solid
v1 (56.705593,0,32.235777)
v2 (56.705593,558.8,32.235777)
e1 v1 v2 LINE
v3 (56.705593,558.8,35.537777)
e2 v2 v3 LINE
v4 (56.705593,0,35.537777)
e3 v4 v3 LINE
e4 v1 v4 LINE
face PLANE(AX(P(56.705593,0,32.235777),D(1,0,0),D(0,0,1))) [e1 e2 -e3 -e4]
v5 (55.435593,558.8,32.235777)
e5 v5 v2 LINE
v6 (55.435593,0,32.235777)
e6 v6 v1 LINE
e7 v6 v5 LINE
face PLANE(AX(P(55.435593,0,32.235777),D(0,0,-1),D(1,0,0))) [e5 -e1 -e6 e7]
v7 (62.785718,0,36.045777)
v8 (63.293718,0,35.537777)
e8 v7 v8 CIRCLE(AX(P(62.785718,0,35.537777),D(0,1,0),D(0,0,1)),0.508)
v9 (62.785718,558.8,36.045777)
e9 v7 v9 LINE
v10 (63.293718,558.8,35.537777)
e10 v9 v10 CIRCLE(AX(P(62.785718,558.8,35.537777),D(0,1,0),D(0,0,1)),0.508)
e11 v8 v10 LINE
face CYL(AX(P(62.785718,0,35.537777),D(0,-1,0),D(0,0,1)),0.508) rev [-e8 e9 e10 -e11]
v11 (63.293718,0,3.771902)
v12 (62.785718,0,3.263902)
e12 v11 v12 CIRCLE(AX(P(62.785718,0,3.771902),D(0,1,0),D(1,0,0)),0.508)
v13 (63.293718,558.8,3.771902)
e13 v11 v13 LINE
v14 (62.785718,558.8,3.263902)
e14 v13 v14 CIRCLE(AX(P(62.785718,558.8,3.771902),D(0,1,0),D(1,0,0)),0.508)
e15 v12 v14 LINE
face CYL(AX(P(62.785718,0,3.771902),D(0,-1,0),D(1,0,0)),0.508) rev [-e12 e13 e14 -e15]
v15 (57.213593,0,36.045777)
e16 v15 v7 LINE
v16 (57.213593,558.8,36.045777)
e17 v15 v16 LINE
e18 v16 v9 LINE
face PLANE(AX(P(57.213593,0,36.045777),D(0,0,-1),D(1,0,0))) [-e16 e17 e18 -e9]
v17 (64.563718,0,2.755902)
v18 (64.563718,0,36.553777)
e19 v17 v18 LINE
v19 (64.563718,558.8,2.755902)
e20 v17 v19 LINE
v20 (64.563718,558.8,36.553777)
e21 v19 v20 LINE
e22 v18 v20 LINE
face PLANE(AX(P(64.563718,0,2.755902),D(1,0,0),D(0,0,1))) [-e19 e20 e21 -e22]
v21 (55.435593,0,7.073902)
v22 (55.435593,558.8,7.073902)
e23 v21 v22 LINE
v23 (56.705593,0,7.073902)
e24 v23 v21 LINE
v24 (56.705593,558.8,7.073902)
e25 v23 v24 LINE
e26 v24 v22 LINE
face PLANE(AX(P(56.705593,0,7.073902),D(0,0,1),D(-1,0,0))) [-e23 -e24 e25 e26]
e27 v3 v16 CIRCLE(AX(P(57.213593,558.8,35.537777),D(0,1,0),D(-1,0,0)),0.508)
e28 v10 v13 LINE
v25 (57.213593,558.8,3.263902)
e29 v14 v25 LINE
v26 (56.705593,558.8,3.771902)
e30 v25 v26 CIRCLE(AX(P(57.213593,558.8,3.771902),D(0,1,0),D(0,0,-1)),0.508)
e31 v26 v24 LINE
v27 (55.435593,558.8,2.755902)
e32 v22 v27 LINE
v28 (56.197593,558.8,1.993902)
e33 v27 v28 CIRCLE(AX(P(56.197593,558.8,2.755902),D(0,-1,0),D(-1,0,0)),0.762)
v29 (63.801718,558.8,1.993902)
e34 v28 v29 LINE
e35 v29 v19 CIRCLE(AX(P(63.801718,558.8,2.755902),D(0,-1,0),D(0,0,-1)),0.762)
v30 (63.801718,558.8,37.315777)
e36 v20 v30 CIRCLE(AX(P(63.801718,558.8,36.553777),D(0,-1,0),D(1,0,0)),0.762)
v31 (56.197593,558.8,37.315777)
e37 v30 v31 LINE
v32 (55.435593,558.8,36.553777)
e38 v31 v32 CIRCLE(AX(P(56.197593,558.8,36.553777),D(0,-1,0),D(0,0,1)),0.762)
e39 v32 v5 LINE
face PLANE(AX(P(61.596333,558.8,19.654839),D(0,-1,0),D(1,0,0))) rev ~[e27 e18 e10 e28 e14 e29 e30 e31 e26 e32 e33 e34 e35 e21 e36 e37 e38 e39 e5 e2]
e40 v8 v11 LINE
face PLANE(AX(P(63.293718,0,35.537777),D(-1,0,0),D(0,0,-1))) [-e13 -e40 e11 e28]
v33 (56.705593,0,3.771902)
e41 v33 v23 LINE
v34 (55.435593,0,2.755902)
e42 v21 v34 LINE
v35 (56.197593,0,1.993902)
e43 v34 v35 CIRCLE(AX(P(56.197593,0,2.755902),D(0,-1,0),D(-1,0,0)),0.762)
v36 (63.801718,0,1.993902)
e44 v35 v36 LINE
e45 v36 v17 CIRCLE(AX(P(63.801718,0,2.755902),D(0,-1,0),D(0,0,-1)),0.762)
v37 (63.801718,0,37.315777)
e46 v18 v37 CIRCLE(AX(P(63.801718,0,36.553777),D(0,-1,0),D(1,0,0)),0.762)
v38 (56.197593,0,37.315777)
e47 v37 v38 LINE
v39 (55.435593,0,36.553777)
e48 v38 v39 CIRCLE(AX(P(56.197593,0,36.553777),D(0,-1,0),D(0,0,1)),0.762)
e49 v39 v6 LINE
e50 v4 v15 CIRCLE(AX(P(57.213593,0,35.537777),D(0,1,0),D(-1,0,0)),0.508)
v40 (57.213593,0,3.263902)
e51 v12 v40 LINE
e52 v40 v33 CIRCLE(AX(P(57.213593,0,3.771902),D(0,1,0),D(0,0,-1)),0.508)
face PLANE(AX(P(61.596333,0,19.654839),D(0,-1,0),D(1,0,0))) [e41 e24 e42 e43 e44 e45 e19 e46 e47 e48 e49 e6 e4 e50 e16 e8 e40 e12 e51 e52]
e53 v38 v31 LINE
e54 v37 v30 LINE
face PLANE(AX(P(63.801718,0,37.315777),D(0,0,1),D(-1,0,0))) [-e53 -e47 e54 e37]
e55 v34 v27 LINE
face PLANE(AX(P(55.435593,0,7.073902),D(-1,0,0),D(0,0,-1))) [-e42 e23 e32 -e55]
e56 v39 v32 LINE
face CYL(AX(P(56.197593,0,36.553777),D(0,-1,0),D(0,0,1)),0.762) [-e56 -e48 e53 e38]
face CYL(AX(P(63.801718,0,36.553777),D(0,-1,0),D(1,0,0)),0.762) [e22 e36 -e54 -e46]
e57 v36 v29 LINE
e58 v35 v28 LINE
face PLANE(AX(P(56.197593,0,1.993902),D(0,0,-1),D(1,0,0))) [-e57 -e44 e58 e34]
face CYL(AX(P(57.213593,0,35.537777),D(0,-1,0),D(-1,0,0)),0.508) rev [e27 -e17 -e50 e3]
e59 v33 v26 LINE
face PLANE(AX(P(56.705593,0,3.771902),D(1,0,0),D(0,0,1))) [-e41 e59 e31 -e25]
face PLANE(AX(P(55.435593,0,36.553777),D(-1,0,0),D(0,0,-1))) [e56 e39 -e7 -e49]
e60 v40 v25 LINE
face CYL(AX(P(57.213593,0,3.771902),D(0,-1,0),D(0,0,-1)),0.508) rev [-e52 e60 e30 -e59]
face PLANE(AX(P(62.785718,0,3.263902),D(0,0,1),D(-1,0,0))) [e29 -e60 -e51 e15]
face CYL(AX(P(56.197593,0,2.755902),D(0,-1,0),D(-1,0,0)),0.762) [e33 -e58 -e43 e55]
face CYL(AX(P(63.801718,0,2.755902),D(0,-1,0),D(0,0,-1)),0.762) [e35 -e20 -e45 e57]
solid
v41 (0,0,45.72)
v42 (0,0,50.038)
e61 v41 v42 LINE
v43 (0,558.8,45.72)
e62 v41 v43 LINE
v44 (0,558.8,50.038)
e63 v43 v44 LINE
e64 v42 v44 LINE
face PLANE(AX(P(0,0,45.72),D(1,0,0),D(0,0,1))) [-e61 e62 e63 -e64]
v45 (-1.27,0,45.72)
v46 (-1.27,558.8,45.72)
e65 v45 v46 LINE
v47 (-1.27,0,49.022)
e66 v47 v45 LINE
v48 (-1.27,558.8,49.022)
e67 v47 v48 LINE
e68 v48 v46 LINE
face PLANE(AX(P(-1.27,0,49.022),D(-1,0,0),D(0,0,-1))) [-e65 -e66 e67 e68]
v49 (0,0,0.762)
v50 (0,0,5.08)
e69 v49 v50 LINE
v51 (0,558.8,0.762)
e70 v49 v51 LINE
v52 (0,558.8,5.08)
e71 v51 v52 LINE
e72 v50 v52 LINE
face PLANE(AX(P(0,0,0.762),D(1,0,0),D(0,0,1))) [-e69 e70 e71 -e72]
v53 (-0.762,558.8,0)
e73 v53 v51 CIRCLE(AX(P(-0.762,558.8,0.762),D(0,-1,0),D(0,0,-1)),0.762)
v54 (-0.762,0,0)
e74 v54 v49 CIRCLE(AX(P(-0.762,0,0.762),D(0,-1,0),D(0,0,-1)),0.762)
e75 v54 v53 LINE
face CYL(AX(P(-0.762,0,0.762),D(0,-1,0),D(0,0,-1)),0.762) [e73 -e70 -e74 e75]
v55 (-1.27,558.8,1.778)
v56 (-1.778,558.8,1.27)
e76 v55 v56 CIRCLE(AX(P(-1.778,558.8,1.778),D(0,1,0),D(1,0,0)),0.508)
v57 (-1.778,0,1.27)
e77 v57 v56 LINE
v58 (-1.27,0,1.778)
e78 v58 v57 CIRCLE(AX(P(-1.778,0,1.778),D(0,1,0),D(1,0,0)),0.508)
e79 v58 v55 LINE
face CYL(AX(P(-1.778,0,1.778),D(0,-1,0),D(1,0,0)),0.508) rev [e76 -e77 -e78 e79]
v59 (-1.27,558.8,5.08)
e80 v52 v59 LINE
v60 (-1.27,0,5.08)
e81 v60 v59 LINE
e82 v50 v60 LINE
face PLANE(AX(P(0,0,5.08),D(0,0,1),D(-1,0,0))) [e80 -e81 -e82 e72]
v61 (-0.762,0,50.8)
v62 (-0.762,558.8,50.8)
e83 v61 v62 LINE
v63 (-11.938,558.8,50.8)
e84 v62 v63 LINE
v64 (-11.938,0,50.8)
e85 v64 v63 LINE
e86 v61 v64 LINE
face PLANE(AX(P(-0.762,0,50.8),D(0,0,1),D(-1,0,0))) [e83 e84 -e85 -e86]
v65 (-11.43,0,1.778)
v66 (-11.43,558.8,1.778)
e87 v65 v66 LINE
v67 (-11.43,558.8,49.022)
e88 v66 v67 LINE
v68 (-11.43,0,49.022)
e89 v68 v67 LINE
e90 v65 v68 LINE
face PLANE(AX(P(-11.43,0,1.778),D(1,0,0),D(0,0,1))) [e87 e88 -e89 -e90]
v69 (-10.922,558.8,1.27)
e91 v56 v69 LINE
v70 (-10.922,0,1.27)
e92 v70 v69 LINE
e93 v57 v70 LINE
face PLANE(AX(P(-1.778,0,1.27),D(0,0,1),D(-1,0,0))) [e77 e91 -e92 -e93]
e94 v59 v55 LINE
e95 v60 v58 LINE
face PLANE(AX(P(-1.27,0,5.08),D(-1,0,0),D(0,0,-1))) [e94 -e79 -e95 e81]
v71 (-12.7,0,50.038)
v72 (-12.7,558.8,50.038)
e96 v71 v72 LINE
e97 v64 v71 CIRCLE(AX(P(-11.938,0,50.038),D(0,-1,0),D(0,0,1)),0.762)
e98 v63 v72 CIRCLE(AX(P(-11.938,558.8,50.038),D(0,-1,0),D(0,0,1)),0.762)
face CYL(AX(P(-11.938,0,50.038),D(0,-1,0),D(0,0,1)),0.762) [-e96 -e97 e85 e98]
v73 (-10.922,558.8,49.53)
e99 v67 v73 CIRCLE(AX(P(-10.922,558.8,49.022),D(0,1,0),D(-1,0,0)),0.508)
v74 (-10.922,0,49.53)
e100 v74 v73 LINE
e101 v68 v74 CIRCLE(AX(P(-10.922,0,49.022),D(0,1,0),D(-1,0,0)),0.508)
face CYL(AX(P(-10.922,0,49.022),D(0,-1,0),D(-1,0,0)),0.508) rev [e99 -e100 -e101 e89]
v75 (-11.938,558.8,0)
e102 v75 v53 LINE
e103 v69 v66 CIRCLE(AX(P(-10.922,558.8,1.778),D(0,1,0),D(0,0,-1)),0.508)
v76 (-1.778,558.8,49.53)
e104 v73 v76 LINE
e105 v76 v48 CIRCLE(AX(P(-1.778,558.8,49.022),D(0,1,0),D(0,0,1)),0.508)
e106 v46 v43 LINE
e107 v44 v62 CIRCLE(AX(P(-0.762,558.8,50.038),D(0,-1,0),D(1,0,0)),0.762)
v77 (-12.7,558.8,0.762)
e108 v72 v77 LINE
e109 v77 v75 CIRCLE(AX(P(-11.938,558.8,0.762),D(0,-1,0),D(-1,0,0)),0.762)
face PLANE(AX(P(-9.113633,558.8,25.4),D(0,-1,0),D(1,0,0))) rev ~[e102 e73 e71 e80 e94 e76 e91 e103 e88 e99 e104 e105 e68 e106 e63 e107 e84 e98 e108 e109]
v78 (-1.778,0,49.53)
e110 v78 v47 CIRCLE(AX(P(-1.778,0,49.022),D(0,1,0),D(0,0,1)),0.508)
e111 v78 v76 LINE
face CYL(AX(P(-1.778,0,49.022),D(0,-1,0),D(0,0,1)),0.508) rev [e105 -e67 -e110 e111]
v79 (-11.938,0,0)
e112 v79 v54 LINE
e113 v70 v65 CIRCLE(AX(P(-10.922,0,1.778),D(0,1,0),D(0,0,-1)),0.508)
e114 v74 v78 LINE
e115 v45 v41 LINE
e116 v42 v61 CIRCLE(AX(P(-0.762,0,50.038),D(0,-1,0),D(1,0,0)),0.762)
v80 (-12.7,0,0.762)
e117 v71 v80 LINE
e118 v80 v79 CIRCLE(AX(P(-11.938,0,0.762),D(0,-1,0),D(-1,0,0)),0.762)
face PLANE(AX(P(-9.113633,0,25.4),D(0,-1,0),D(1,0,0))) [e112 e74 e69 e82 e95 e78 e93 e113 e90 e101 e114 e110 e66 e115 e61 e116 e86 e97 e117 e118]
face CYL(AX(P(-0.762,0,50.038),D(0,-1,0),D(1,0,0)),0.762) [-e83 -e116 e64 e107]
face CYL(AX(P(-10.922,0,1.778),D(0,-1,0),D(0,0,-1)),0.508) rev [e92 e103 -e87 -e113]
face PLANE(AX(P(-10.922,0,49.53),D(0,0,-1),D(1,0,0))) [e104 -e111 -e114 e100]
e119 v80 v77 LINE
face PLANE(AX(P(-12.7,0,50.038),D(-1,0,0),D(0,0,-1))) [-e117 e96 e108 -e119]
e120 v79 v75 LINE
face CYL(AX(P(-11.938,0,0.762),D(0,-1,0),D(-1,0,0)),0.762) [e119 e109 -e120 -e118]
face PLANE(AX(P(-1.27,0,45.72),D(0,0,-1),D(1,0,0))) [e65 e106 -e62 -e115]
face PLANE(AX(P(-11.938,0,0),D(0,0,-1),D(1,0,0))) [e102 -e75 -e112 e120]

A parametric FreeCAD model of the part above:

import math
import FreeCAD as App
import Part
import Sketcher

V = App.Vector
Q = App.Units.Quantity

doc = App.newDocument("Part")
body = doc.addObject("PartDesign::Body", "Body")

# Sketch on XZ plane
sketch1 = doc.addObject("Sketcher::SketchObject", "Sketch")
body.addObject(sketch1)
sketch1.AttachmentSupport = (doc.XZ_Plane, [""])
sketch1.MapMode = "FlatFace"
sketch1.addGeometry(Part.LineSegment(V(-0.762, 50.8, 0), V(-11.938, 50.8, 0)), False)
sketch1.addGeometry(Part.ArcOfCircle(Part.Circle(V(-11.938, 50.038, 0), V(0, 0, 1), 0.762), math.radians(90), math.radians(180)), False)
sketch1.addGeometry(Part.LineSegment(V(-12.7, 50.038, 0), V(-12.7, 0.762, 0)), False)
sketch1.addGeometry(Part.ArcOfCircle(Part.Circle(V(-11.938, 0.762, 0), V(0, 0, 1), 0.762), math.radians(180), math.radians(270)), False)
sketch1.addGeometry(Part.LineSegment(V(-11.938, 0, 0), V(-0.762, 0, 0)), False)
sketch1.addGeometry(Part.ArcOfCircle(Part.Circle(V(-0.762, 0.762, 0), V(0, 0, 1), 0.762), math.radians(-90), math.radians(0)), False)
sketch1.addGeometry(Part.LineSegment(V(0, 0.762, 0), V(0, 5.08, 0)), False)
sketch1.addGeometry(Part.LineSegment(V(0, 5.08, 0), V(-1.27, 5.08, 0)), False)
sketch1.addGeometry(Part.LineSegment(V(-1.27, 5.08, 0), V(-1.27, 1.778, 0)), False)
sketch1.addGeometry(Part.ArcOfCircle(Part.Circle(V(-1.778, 1.778, 0), V(0, 0, 1), 0.508), math.radians(-90), math.radians(0)), False)
sketch1.addGeometry(Part.LineSegment(V(-1.778, 1.27, 0), V(-10.922, 1.27, 0)), False)
sketch1.addGeometry(Part.ArcOfCircle(Part.Circle(V(-10.922, 1.778, 0), V(0, 0, 1), 0.508), math.radians(180), math.radians(270)), False)
sketch1.addGeometry(Part.LineSegment(V(-11.43, 1.778, 0), V(-11.43, 49.022, 0)), False)
sketch1.addGeometry(Part.ArcOfCircle(Part.Circle(V(-10.922, 49.022, 0), V(0, 0, 1), 0.508), math.radians(90), math.radians(180)), False)
sketch1.addGeometry(Part.LineSegment(V(-10.922, 49.53, 0), V(-1.778, 49.53, 0)), False)
sketch1.addGeometry(Part.ArcOfCircle(Part.Circle(V(-1.778, 49.022, 0), V(0, 0, 1), 0.508), math.radians(0), math.radians(90)), False)
sketch1.addGeometry(Part.LineSegment(V(-1.27, 49.022, 0), V(-1.27, 45.72, 0)), False)
sketch1.addGeometry(Part.LineSegment(V(-1.27, 45.72, 0), V(0, 45.72, 0)), False)
sketch1.addGeometry(Part.LineSegment(V(0, 45.72, 0), V(0, 50.038, 0)), False)
sketch1.addGeometry(Part.ArcOfCircle(Part.Circle(V(-0.762, 50.038, 0), V(0, 0, 1), 0.762), math.radians(0), math.radians(90)), False)
sketch1.addConstraint(Sketcher.Constraint("Tangent", 0, 2, 1, 1))
sketch1.addConstraint(Sketcher.Constraint("Tangent", 1, 2, 2, 1))
sketch1.addConstraint(Sketcher.Constraint("Tangent", 2, 2, 3, 1))
sketch1.addConstraint(Sketcher.Constraint("Tangent", 3, 2, 4, 1))
sketch1.addConstraint(Sketcher.Constraint("Tangent", 4, 2, 5, 1))
sketch1.addConstraint(Sketcher.Constraint("Tangent", 5, 2, 6, 1))
sketch1.addConstraint(Sketcher.Constraint("Coincident", 6, 2, 7, 1))
sketch1.addConstraint(Sketcher.Constraint("Coincident", 7, 2, 8, 1))
sketch1.addConstraint(Sketcher.Constraint("Tangent", 8, 2, 9, 2))
sketch1.addConstraint(Sketcher.Constraint("Tangent", 9, 1, 10, 1))
sketch1.addConstraint(Sketcher.Constraint("Tangent", 10, 2, 11, 2))
sketch1.addConstraint(Sketcher.Constraint("Tangent", 11, 1, 12, 1))
sketch1.addConstraint(Sketcher.Constraint("Tangent", 12, 2, 13, 2))
sketch1.addConstraint(Sketcher.Constraint("Tangent", 13, 1, 14, 1))
sketch1.addConstraint(Sketcher.Constraint("Tangent", 14, 2, 15, 2))
sketch1.addConstraint(Sketcher.Constraint("Tangent", 15, 1, 16, 1))
sketch1.addConstraint(Sketcher.Constraint("Coincident", 16, 2, 17, 1))
sketch1.addConstraint(Sketcher.Constraint("Coincident", 17, 2, 18, 1))
sketch1.addConstraint(Sketcher.Constraint("Tangent", 18, 2, 19, 1))
sketch1.addConstraint(Sketcher.Constraint("Tangent", 19, 2, 0, 1))
sketch1.addConstraint(Sketcher.Constraint("Horizontal", 0))
sketch1.addConstraint(Sketcher.Constraint("Vertical", 2))
sketch1.addConstraint(Sketcher.Constraint("Horizontal", 4))
sketch1.addConstraint(Sketcher.Constraint("Vertical", 6))
sketch1.addConstraint(Sketcher.Constraint("Horizontal", 7))
sketch1.addConstraint(Sketcher.Constraint("Vertical", 8))
sketch1.addConstraint(Sketcher.Constraint("Horizontal", 10))
sketch1.addConstraint(Sketcher.Constraint("Vertical", 12))
sketch1.addConstraint(Sketcher.Constraint("Horizontal", 14))
sketch1.addConstraint(Sketcher.Constraint("Vertical", 16))
sketch1.addConstraint(Sketcher.Constraint("Horizontal", 17))
sketch1.addConstraint(Sketcher.Constraint("Vertical", 18))
sketch1.addConstraint(Sketcher.Constraint("Equal", 1, 3))
sketch1.addConstraint(Sketcher.Constraint("Equal", 3, 5))
sketch1.addConstraint(Sketcher.Constraint("Equal", 9, 11))
sketch1.addConstraint(Sketcher.Constraint("Equal", 11, 13))
sketch1.addConstraint(Sketcher.Constraint("Equal", 13, 15))
sketch1.addConstraint(Sketcher.Constraint("Equal", 5, 19))
sketch1.addConstraint(Sketcher.Constraint("PointOnObject", 3, 2, -1))
sketch1.addConstraint(Sketcher.Constraint("PointOnObject", 5, 2, -2))
sketch1.addConstraint(Sketcher.Constraint("PointOnObject", 17, 2, -2))
sketch1.addConstraint(Sketcher.Constraint("Vertical", 9, 3, 15, 3))
sketch1.addConstraint(Sketcher.Constraint("Equal", 8, 16))
sketch1.addConstraint(Sketcher.Constraint("Equal", 6, 18))
sketch1.addConstraint(Sketcher.Constraint("Radius", 1, Q("0.03 in")))
sketch1.addConstraint(Sketcher.Constraint("Radius", 9, Q("0.02 in")))
sketch1.addConstraint(Sketcher.Constraint("DistanceY", -1, 1, 0, 2, Q("2 in")))
sketch1.addConstraint(Sketcher.Constraint("DistanceX", 0, 2, 0, 1, Q("0.44 in")))
sketch1.addConstraint(Sketcher.Constraint("DistanceX", 7, 2, 7, 1, Q("0.05 in")))
sketch1.addConstraint(Sketcher.Constraint("DistanceX", 10, 2, 10, 1, Q("0.36 in")))
sketch1.addConstraint(Sketcher.Constraint("DistanceY", 6, 1, 6, 2, Q("0.17 in")))
sketch1.addConstraint(Sketcher.Constraint("DistanceY", 8, 2, 8, 1, Q("0.13 in")))
pad1 = doc.addObject("PartDesign::Pad", "Pad")
body.addObject(pad1)
pad1.Profile = sketch1
pad1.Length = Q("22 in")
pad1.Reversed = True
body2 = doc.addObject("PartDesign::Body", "Body001")

# Sketch on XZ plane
sketch2 = doc.addObject("Sketcher::SketchObject", "Sketch001")
body2.addObject(sketch2)
sketch2.AttachmentSupport = (doc.getObject("XZ_Plane001"), [""])
sketch2.MapMode = "FlatFace"
sketch2.addGeometry(Part.LineSegment(V(55.435593, 36.553777, 0), V(55.435593, 32.235777, 0)), False)
sketch2.addGeometry(Part.LineSegment(V(55.435593, 32.235777, 0), V(56.705593, 32.235777, 0)), False)
sketch2.addGeometry(Part.LineSegment(V(56.705593, 32.235777, 0), V(56.705593, 35.537777, 0)), False)
sketch2.addGeometry(Part.ArcOfCircle(Part.Circle(V(57.213593, 35.537777, 0), V(0, 0, 1), 0.508), math.radians(90), math.radians(180)), False)
sketch2.addGeometry(Part.LineSegment(V(57.213593, 36.045777, 0), V(62.785718, 36.045777, 0)), False)
sketch2.addGeometry(Part.ArcOfCircle(Part.Circle(V(62.785718, 35.537777, 0), V(0, 0, 1), 0.508), math.radians(0), math.radians(90)), False)
sketch2.addGeometry(Part.LineSegment(V(63.293718, 35.537777, 0), V(63.293718, 3.771902, 0)), False)
sketch2.addGeometry(Part.ArcOfCircle(Part.Circle(V(62.785718, 3.771902, 0), V(0, 0, 1), 0.508), math.radians(-90), math.radians(0)), False)
sketch2.addGeometry(Part.LineSegment(V(62.785718, 3.263902, 0), V(57.213593, 3.263902, 0)), False)
sketch2.addGeometry(Part.ArcOfCircle(Part.Circle(V(57.213593, 3.771902, 0), V(0, 0, 1), 0.508), math.radians(180), math.radians(270)), False)
sketch2.addGeometry(Part.LineSegment(V(56.705593, 3.771902, 0), V(56.705593, 7.073902, 0)), False)
sketch2.addGeometry(Part.LineSegment(V(56.705593, 7.073902, 0), V(55.435593, 7.073902, 0)), False)
sketch2.addGeometry(Part.LineSegment(V(55.435593, 7.073902, 0), V(55.435593, 2.755902, 0)), False)
sketch2.addGeometry(Part.ArcOfCircle(Part.Circle(V(56.197593, 2.755902, 0), V(0, 0, 1), 0.762), math.radians(180), math.radians(270)), False)
sketch2.addGeometry(Part.LineSegment(V(56.197593, 1.993902, 0), V(63.801718, 1.993902, 0)), False)
sketch2.addGeometry(Part.ArcOfCircle(Part.Circle(V(63.801718, 2.755902, 0), V(0, 0, 1), 0.762), math.radians(-90), math.radians(0)), False)
sketch2.addGeometry(Part.LineSegment(V(64.563718, 2.755902, 0), V(64.563718, 36.553777, 0)), False)
sketch2.addGeometry(Part.ArcOfCircle(Part.Circle(V(63.801718, 36.553777, 0), V(0, 0, 1), 0.762), math.radians(0), math.radians(90)), False)
sketch2.addGeometry(Part.LineSegment(V(63.801718, 37.315777, 0), V(56.197593, 37.315777, 0)), False)
sketch2.addGeometry(Part.ArcOfCircle(Part.Circle(V(56.197593, 36.553777, 0), V(0, 0, 1), 0.762), math.radians(90), math.radians(180)), False)
sketch2.addConstraint(Sketcher.Constraint("Coincident", 0, 2, 1, 1))
sketch2.addConstraint(Sketcher.Constraint("Coincident", 1, 2, 2, 1))
sketch2.addConstraint(Sketcher.Constraint("Tangent", 2, 2, 3, 2))
sketch2.addConstraint(Sketcher.Constraint("Tangent", 3, 1, 4, 1))
sketch2.addConstraint(Sketcher.Constraint("Tangent", 4, 2, 5, 2))
sketch2.addConstraint(Sketcher.Constraint("Tangent", 5, 1, 6, 1))
sketch2.addConstraint(Sketcher.Constraint("Tangent", 6, 2, 7, 2))
sketch2.addConstraint(Sketcher.Constraint("Tangent", 7, 1, 8, 1))
sketch2.addConstraint(Sketcher.Constraint("Tangent", 8, 2, 9, 2))
sketch2.addConstraint(Sketcher.Constraint("Tangent", 9, 1, 10, 1))
sketch2.addConstraint(Sketcher.Constraint("Coincident", 10, 2, 11, 1))
sketch2.addConstraint(Sketcher.Constraint("Coincident", 11, 2, 12, 1))
sketch2.addConstraint(Sketcher.Constraint("Tangent", 12, 2, 13, 1))
sketch2.addConstraint(Sketcher.Constraint("Tangent", 13, 2, 14, 1))
sketch2.addConstraint(Sketcher.Constraint("Tangent", 14, 2, 15, 1))
sketch2.addConstraint(Sketcher.Constraint("Tangent", 15, 2, 16, 1))
sketch2.addConstraint(Sketcher.Constraint("Tangent", 16, 2, 17, 1))
sketch2.addConstraint(Sketcher.Constraint("Tangent", 17, 2, 18, 1))
sketch2.addConstraint(Sketcher.Constraint("Tangent", 18, 2, 19, 1))
sketch2.addConstraint(Sketcher.Constraint("Tangent", 19, 2, 0, 1))
sketch2.addConstraint(Sketcher.Constraint("Vertical", 0))
sketch2.addConstraint(Sketcher.Constraint("Horizontal", 1))
sketch2.addConstraint(Sketcher.Constraint("Vertical", 2))
sketch2.addConstraint(Sketcher.Constraint("Horizontal", 4))
sketch2.addConstraint(Sketcher.Constraint("Vertical", 6))
sketch2.addConstraint(Sketcher.Constraint("Horizontal", 8))
sketch2.addConstraint(Sketcher.Constraint("Vertical", 10))
sketch2.addConstraint(Sketcher.Constraint("Horizontal", 11))
sketch2.addConstraint(Sketcher.Constraint("Vertical", 12))
sketch2.addConstraint(Sketcher.Constraint("Horizontal", 14))
sketch2.addConstraint(Sketcher.Constraint("Vertical", 16))
sketch2.addConstraint(Sketcher.Constraint("Horizontal", 18))
sketch2.addConstraint(Sketcher.Constraint("Equal", 3, 5))
sketch2.addConstraint(Sketcher.Constraint("Equal", 5, 7))
sketch2.addConstraint(Sketcher.Constraint("Equal", 7, 9))
sketch2.addConstraint(Sketcher.Constraint("Equal", 13, 15))
sketch2.addConstraint(Sketcher.Constraint("Equal", 15, 17))
sketch2.addConstraint(Sketcher.Constraint("Equal", 17, 19))
sketch2.addConstraint(Sketcher.Constraint("Vertical", 3, 3, 9, 3))
sketch2.addConstraint(Sketcher.Constraint("Vertical", 13, 3, 19, 3))
sketch2.addConstraint(Sketcher.Constraint("Equal", 2, 10))
sketch2.addConstraint(Sketcher.Constraint("Equal", 0, 12))
sketch2.addConstraint(Sketcher.Constraint("Radius", 3, Q("0.02 in")))
sketch2.addConstraint(Sketcher.Constraint("Radius", 13, Q("0.03 in")))
sketch2.addConstraint(Sketcher.Constraint("DistanceX", 1, 1, 1, 2, Q("0.05 in")))
sketch2.addConstraint(Sketcher.Constraint("DistanceY", 0, 2, 0, 1, Q("0.17 in")))
sketch2.addConstraint(Sketcher.Constraint("DistanceY", 2, 1, 2, 2, Q("0.13 in")))
sketch2.addConstraint(Sketcher.Constraint("DistanceX", 7, 3, 15, 3, Q("0.04 in")))
sketch2.addConstraint(Sketcher.Constraint("DistanceY", -1, 1, 7, 3, Q("0.1485001 in")))
sketch2.addConstraint(Sketcher.Constraint("DistanceX", 4, 1, 4, 2, 5.572125))
sketch2.addConstraint(Sketcher.Constraint("DistanceY", 6, 2, 6, 1, 31.765875))
sketch2.addConstraint(Sketcher.Constraint("DistanceX", -1, 1, 5, 3, 62.785718))
pad2 = doc.addObject("PartDesign::Pad", "Pad001")
body2.addObject(pad2)
pad2.Profile = sketch2
pad2.Length = Q("22 in")
pad2.Reversed = True

doc.recompute()
